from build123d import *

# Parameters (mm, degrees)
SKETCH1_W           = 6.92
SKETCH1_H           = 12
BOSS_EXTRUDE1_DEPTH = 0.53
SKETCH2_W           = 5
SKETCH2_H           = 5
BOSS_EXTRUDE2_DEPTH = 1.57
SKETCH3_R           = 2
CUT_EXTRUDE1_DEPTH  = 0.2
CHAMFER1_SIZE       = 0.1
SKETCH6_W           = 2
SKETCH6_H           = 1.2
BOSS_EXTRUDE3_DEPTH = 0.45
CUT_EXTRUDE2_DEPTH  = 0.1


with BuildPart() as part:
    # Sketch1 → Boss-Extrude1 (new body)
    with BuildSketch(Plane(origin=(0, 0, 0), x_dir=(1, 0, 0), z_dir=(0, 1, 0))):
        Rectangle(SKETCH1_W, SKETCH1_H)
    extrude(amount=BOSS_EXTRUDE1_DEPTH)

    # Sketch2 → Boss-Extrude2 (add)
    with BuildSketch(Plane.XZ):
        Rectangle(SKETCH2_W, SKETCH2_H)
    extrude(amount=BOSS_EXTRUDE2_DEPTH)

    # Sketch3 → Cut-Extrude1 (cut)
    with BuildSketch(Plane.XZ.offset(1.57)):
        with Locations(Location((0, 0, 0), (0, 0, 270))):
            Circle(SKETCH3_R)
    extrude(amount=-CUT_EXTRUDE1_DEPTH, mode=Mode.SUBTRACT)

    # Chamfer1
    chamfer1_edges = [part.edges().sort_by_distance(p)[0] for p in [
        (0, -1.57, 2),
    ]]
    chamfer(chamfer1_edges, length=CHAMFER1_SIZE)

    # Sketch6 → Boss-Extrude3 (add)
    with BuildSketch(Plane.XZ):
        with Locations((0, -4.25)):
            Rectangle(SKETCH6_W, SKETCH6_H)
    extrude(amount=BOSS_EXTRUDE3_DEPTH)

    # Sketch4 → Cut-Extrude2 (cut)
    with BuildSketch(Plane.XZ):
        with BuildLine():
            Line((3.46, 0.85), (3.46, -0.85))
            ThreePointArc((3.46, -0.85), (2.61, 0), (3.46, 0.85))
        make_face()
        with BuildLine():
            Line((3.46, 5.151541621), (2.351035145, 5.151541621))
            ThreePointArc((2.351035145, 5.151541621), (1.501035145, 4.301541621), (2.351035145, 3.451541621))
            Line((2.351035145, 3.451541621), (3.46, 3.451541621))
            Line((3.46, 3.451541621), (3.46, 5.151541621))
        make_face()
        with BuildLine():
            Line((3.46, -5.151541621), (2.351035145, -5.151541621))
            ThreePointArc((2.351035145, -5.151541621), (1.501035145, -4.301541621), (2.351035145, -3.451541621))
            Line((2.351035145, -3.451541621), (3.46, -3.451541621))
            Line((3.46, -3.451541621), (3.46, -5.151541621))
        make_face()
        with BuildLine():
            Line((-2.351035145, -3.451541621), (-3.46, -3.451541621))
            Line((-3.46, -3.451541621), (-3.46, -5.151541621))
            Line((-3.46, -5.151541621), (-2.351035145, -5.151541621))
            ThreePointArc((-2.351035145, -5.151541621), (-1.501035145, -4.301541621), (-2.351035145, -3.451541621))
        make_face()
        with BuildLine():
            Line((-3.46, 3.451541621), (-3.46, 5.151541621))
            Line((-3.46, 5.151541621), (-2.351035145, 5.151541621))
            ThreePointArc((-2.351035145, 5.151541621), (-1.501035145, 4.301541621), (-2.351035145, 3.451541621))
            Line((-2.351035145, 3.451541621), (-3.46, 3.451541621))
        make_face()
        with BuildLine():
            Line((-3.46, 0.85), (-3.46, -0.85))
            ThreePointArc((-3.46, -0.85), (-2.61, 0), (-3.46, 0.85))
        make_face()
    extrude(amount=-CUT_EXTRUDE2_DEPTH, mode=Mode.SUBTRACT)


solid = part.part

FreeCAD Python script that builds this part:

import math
import FreeCAD as App
import Part
import Sketcher


def edges_at(feature, points):
    """Names of the edges that pass closest to the given points."""
    edges = feature.Shape.Edges
    near = lambda p: min(range(len(edges)), key=lambda i: edges[i].distToShape(Part.Vertex(*p))[0])
    return sorted({f"Edge{near(p) + 1}" for p in points})

doc = App.newDocument("Part")
body = doc.addObject("PartDesign::Body", "Body")

# Sketch on XZ plane
sketch1 = body.newObject("Sketcher::SketchObject", "Sketch")
sketch1.AttachmentSupport = (doc.getObject("XZ_Plane"), [""])
sketch1.MapMode = "FlatFace"
sketch1.addGeometry([
    Part.LineSegment(App.Vector(-3, -6, 0), App.Vector(-3, 6, 0)),
    Part.LineSegment(App.Vector(-3, 6, 0), App.Vector(3, 6, 0)),
    Part.LineSegment(App.Vector(3, 6, 0), App.Vector(3, -6, 0)),
    Part.LineSegment(App.Vector(3, -6, 0), App.Vector(-3, -6, 0)),
], False)
sketch1.addConstraint([
    Sketcher.Constraint("Coincident", 0, 2, 1, 1),
    Sketcher.Constraint("Coincident", 1, 2, 2, 1),
    Sketcher.Constraint("Coincident", 2, 2, 3, 1),
    Sketcher.Constraint("Coincident", 3, 2, 0, 1),
    Sketcher.Constraint("Vertical", 0),
    Sketcher.Constraint("Horizontal", 1),
    Sketcher.Constraint("Vertical", 2),
    Sketcher.Constraint("Horizontal", 3),
    Sketcher.Constraint("Symmetric", 0, 2, 2, 2, -1, 1),
    Sketcher.Constraint("DistanceY", 0, 1, 0, 2, 12.0),
    Sketcher.Constraint("DistanceX", 1, 1, 1, 2, 6.92),
])
pad1 = body.newObject("PartDesign::Pad", "Pad")
pad1.Profile = sketch1
pad1.Length = 0.53
pad1.Reversed = True

# Sketch on XZ plane
sketch2 = body.newObject("Sketcher::SketchObject", "Sketch001")
sketch2.AttachmentSupport = (doc.getObject("XZ_Plane"), [""])
sketch2.MapMode = "FlatFace"
sketch2.addGeometry([
    Part.LineSegment(App.Vector(-2, 2, 0), App.Vector(-2, -2, 0)),
    Part.LineSegment(App.Vector(-2, -2, 0), App.Vector(2, -2, 0)),
    Part.LineSegment(App.Vector(2, -2, 0), App.Vector(2, 2, 0)),
    Part.LineSegment(App.Vector(2, 2, 0), App.Vector(-2, 2, 0)),
], False)
sketch2.addConstraint([
    Sketcher.Constraint("Coincident", 0, 2, 1, 1),
    Sketcher.Constraint("Coincident", 1, 2, 2, 1),
    Sketcher.Constraint("Coincident", 2, 2, 3, 1),
    Sketcher.Constraint("Coincident", 3, 2, 0, 1),
    Sketcher.Constraint("Vertical", 0),
    Sketcher.Constraint("Horizontal", 1),
    Sketcher.Constraint("Vertical", 2),
    Sketcher.Constraint("Horizontal", 3),
    Sketcher.Constraint("Symmetric", 0, 2, 2, 2, -1, 1),
    Sketcher.Constraint("Equal", 3, 0),
    Sketcher.Constraint("DistanceX", 1, 1, 1, 2, 5.0),
])
pad2 = body.newObject("PartDesign::Pad", "Pad001")
pad2.Profile = sketch2
pad2.Length = 1.57

# Sketch on XZ plane
sketch3 = body.newObject("Sketcher::SketchObject", "Sketch002")
sketch3.AttachmentSupport = (doc.getObject("XZ_Plane"), [""])
sketch3.MapMode = "FlatFace"
sketch3.AttachmentOffset = App.Placement(App.Vector(0, 0, 1.57), App.Rotation())
sketch3.addGeometry(Part.Circle(App.Vector(0, 0, 0), App.Vector(0, 0, 1), 2), False)
sketch3.addConstraint([
    Sketcher.Constraint("Coincident", 0, 3, -1, 1),
    Sketcher.Constraint("Diameter", 0, 4.0),
])
pocket1 = body.newObject("PartDesign::Pocket", "Pocket")
pocket1.Profile = sketch3
pocket1.Length = 0.2
doc.recompute()

chamfer = body.newObject("PartDesign::Chamfer", "Chamfer")
chamfer.Base = (pocket1, edges_at(pocket1, [(0, -1.57, 2)]))
chamfer.Size = 0.1

# Sketch on XZ plane
sketch4 = body.newObject("Sketcher::SketchObject", "Sketch003")
sketch4.AttachmentSupport = (doc.getObject("XZ_Plane"), [""])
sketch4.MapMode = "FlatFace"
sketch4.addGeometry([
    Part.LineSegment(App.Vector(-1, -3.6, 0), App.Vector(-1, -4.8, 0)),
    Part.LineSegment(App.Vector(-1, -4.8, 0), App.Vector(1, -4.8, 0)),
    Part.LineSegment(App.Vector(1, -4.8, 0), App.Vector(1, -3.6, 0)),
    Part.LineSegment(App.Vector(1, -3.6, 0), App.Vector(-1, -3.6, 0)),
], False)
sketch4.addConstraint([
    Sketcher.Constraint("Coincident", 0, 2, 1, 1),
    Sketcher.Constraint("Coincident", 1, 2, 2, 1),
    Sketcher.Constraint("Coincident", 2, 2, 3, 1),
    Sketcher.Constraint("Coincident", 3, 2, 0, 1),
    Sketcher.Constraint("Vertical", 0),
    Sketcher.Constraint("Horizontal", 1),
    Sketcher.Constraint("Vertical", 2),
    Sketcher.Constraint("Horizontal", 3),
    Sketcher.Constraint("DistanceX", 1, 1, 1, 2, 2.0),
    Sketcher.Constraint("DistanceY", 0, 2, 0, 1, 1.2),
    Sketcher.Constraint("DistanceX", 0, 2, -1, 1, 1.0),
    Sketcher.Constraint("DistanceY", 0, 2, -1, 1, 4.85),
])
pad3 = body.newObject("PartDesign::Pad", "Pad002")
pad3.Profile = sketch4
pad3.Length = 0.45

# Sketch on XZ plane
sketch5 = body.newObject("Sketcher::SketchObject", "Sketch004")
sketch5.AttachmentSupport = (doc.getObject("XZ_Plane"), [""])
sketch5.MapMode = "FlatFace"
sketch5.addGeometry([
    Part.LineSegment(App.Vector(3.5, -0.8, 0), App.Vector(3.5, 0.8, 0)),  # 0
    Part.ArcOfCircle(Part.Circle(App.Vector(3.5, 0, 0), App.Vector(0, 0, 1), 0.8), math.radians(90), math.radians(270)),  # 1
    Part.LineSegment(App.Vector(3.5, 5.2, 0), App.Vector(2.4, 5.2, 0)),  # 2
    Part.ArcOfCircle(Part.Circle(App.Vector(2.4, 4.3, 0), App.Vector(0, 0, 1), 0.8), math.radians(90), math.radians(270)),  # 3
    Part.LineSegment(App.Vector(2.4, 3.5, 0), App.Vector(3.5, 3.5, 0)),  # 4
    Part.LineSegment(App.Vector(3.5, 3.5, 0), App.Vector(3.5, 5.2, 0)),  # 5
    Part.LineSegment(App.Vector(2.4, -5.2, 0), App.Vector(3.5, -5.2, 0)),  # 6
    Part.LineSegment(App.Vector(3.5, -5.2, 0), App.Vector(3.5, -3.5, 0)),  # 7
    Part.LineSegment(App.Vector(3.5, -3.5, 0), App.Vector(2.4, -3.5, 0)),  # 8
    Part.ArcOfCircle(Part.Circle(App.Vector(2.4, -4.3, 0), App.Vector(0, 0, 1), 0.8), math.radians(90), math.radians(270)),  # 9
    Part.LineSegment(App.Vector(-2.4, -3.5, 0), App.Vector(-3.5, -3.5, 0)),  # 10
    Part.LineSegment(App.Vector(-3.5, -3.5, 0), App.Vector(-3.5, -5.2, 0)),  # 11
    Part.LineSegment(App.Vector(-3.5, -5.2, 0), App.Vector(-2.4, -5.2, 0)),  # 12
    Part.ArcOfCircle(Part.Circle(App.Vector(-2.4, -4.3, 0), App.Vector(0, 0, 1), 0.8), math.radians(-90), math.radians(90)),  # 13
    Part.LineSegment(App.Vector(-3.5, 5.2, 0), App.Vector(-3.5, 3.5, 0)),  # 14
    Part.LineSegment(App.Vector(-3.5, 3.5, 0), App.Vector(-2.4, 3.5, 0)),  # 15
    Part.ArcOfCircle(Part.Circle(App.Vector(-2.4, 4.3, 0), App.Vector(0, 0, 1), 0.8), math.radians(-90), math.radians(90)),  # 16
    Part.LineSegment(App.Vector(-2.4, 5.2, 0), App.Vector(-3.5, 5.2, 0)),  # 17
    Part.LineSegment(App.Vector(-3.5, 0.8, 0), App.Vector(-3.5, -0.8, 0)),  # 18
    Part.ArcOfCircle(Part.Circle(App.Vector(-3.5, 0, 0), App.Vector(0, 0, 1), 0.8), math.radians(-90), math.radians(90)),  # 19
], False)
sketch5.addConstraint([
    Sketcher.Constraint("Coincident", 0, 1, 1, 2),
    Sketcher.Constraint("Coincident", 1, 1, 0, 2),
    Sketcher.Constraint("Tangent", 2, 2, 3, 1),
    Sketcher.Constraint("Tangent", 3, 2, 4, 1),
    Sketcher.Constraint("Coincident", 4, 2, 5, 1),
    Sketcher.Constraint("Coincident", 5, 2, 2, 1),
    Sketcher.Constraint("Coincident", 6, 2, 7, 1),
    Sketcher.Constraint("Coincident", 7, 2, 8, 1),
    Sketcher.Constraint("Tangent", 8, 2, 9, 1),
    Sketcher.Constraint("Tangent", 9, 2, 6, 1),
    Sketcher.Constraint("Coincident", 10, 2, 11, 1),
    Sketcher.Constraint("Coincident", 11, 2, 12, 1),
    Sketcher.Constraint("Tangent", 12, 2, 13, 1),
    Sketcher.Constraint("Tangent", 13, 2, 10, 1),
    Sketcher.Constraint("Coincident", 14, 2, 15, 1),
    Sketcher.Constraint("Tangent", 15, 2, 16, 1),
    Sketcher.Constraint("Tangent", 16, 2, 17, 1),
    Sketcher.Constraint("Coincident", 17, 2, 14, 1),
    Sketcher.Constraint("Coincident", 18, 1, 19, 2),
    Sketcher.Constraint("Coincident", 19, 1, 18, 2),
    Sketcher.Constraint("Vertical", 0),
    Sketcher.Constraint("Horizontal", 2),
    Sketcher.Constraint("Horizontal", 4),
    Sketcher.Constraint("Vertical", 5),
    Sketcher.Constraint("Horizontal", 6),
    Sketcher.Constraint("Vertical", 7),
    Sketcher.Constraint("Horizontal", 8),
    Sketcher.Constraint("Horizontal", 10),
    Sketcher.Constraint("Vertical", 11),
    Sketcher.Constraint("Horizontal", 12),
    Sketcher.Constraint("Vertical", 14),
    Sketcher.Constraint("Horizontal", 15),
    Sketcher.Constraint("Horizontal", 17),
    Sketcher.Constraint("Vertical", 18),
    Sketcher.Constraint("Equal", 1, 3),
    Sketcher.Constraint("Equal", 3, 9),
    Sketcher.Constraint("Equal", 9, 13),
    Sketcher.Constraint("Equal", 13, 16),
    Sketcher.Constraint("Equal", 16, 19),
    Sketcher.Constraint("Symmetric", 3, 3, 13, 3, -1, 1),
    Sketcher.Constraint("Symmetric", 9, 3, 16, 3, -1, 1),
    Sketcher.Constraint("Symmetric", 1, 3, 19, 3, -1, 1),
    Sketcher.Constraint("Symmetric", 9, 3, 13, 3, -2),
    Sketcher.Constraint("Symmetric", 1, 1, 18, 1, -2),
    Sketcher.Constraint("Vertical", 1, 3, 0, 1),
    Sketcher.Constraint("Vertical", 1, 1, 4, 2),
    Sketcher.Constraint("Vertical", 5, 2, 6, 2),
    Sketcher.Constraint("Vertical", 19, 3, 10, 2),
    Sketcher.Constraint("Vertical", 11, 2, 14, 2),
    Sketcher.Constraint("Radius", 1, 0.85),
    Sketcher.Constraint("DistanceX", -1, 1, 1, 3, 3.46),
    Sketcher.Constraint("DistanceX", 2, 2, 2, 1, 1.108965),
    Sketcher.Constraint("DistanceY", -1, 1, 3, 3, 4.301542),
])
pocket2 = body.newObject("PartDesign::Pocket", "Pocket001")
pocket2.Profile = sketch5
pocket2.Length = 0.1

doc.recompute()
